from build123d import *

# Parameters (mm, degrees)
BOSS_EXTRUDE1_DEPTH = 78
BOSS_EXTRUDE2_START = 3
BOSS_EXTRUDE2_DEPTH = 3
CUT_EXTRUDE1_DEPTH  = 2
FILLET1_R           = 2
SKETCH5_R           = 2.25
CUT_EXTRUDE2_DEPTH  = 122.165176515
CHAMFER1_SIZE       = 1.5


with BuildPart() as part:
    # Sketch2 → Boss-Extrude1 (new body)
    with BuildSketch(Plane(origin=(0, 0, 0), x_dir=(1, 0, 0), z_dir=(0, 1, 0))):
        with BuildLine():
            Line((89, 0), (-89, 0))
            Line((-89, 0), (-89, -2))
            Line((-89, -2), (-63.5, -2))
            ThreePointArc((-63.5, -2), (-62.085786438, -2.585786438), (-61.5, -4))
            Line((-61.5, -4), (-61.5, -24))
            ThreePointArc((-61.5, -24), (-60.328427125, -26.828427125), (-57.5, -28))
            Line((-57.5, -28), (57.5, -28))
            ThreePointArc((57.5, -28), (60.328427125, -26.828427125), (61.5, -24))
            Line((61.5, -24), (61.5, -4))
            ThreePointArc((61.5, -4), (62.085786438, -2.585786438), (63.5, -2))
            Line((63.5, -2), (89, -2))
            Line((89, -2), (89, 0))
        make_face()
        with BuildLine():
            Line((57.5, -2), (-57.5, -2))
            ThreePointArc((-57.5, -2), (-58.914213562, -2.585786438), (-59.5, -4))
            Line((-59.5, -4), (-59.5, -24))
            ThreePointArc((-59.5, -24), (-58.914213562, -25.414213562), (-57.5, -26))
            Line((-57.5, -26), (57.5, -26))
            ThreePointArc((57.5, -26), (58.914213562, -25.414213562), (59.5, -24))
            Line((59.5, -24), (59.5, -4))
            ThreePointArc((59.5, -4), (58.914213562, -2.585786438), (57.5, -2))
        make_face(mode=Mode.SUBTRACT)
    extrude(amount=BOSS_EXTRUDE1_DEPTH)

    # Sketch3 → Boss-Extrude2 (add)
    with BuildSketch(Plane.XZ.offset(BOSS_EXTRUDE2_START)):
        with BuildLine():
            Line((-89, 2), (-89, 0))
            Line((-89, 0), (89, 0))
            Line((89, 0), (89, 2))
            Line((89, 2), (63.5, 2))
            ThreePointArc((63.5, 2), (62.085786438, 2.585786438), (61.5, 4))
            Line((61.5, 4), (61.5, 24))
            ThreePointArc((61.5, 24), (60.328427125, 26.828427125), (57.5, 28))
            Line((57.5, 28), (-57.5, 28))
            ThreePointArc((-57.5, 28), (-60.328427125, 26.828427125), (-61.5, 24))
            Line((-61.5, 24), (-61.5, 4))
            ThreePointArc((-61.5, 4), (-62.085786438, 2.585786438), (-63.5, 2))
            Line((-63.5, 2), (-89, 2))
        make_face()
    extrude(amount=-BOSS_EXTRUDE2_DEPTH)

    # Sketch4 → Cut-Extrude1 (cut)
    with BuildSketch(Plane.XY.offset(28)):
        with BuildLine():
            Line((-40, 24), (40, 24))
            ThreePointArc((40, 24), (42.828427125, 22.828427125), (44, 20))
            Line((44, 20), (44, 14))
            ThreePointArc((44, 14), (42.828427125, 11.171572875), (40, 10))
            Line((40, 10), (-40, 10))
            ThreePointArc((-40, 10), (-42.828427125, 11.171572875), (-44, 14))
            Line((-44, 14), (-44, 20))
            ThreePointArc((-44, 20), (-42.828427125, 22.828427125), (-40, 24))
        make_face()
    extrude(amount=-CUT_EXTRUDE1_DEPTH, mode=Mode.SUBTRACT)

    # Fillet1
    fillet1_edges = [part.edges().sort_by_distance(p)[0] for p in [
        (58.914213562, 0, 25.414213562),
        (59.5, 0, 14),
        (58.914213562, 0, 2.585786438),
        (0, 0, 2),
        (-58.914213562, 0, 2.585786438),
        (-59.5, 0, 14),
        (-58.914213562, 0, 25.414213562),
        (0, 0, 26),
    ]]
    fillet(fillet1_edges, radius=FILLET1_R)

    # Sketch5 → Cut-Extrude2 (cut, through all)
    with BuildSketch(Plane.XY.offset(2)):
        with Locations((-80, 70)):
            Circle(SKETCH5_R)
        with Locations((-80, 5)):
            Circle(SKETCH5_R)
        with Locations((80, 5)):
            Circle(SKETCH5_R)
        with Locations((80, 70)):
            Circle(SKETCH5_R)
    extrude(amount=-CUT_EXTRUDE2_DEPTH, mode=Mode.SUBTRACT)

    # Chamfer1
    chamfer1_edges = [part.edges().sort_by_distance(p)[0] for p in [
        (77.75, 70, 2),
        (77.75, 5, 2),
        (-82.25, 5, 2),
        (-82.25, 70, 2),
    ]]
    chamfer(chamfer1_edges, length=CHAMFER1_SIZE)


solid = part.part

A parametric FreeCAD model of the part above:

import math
import FreeCAD as App
import Part
import Sketcher
from FreeCAD import Vector
Q = App.Units.Quantity


def edges_at(feature, points):
    """Names of the edges that pass closest to the given points."""
    edges = feature.Shape.Edges
    near = lambda p: min(range(len(edges)), key=lambda i: edges[i].distToShape(Part.Vertex(*p))[0])
    return sorted({f"Edge{near(p) + 1}" for p in points})

doc = App.newDocument("Part")
body = doc.addObject("PartDesign::Body", "Body")

sketch1 = doc.addObject("Sketcher::SketchObject", "Sketch")
body.addObject(sketch1)
sketch1.AttachmentSupport = (doc.XZ_Plane, [""])
sketch1.MapMode = "FlatFace"
sketch1.addGeometry([
    Part.LineSegment(Vector(89, 0, 0), Vector(-89, 0, 0)),
    Part.LineSegment(Vector(-89, 0, 0), Vector(-89, 2, 0)),
    Part.LineSegment(Vector(-89, 2, 0), Vector(-63.5, 2, 0)),
    Part.ArcOfCircle(Part.Circle(Vector(-63.5, 4, 0), Vector(0, 0, 1), 2), math.radians(-90), math.radians(0)),
    Part.LineSegment(Vector(-61.5, 4, 0), Vector(-61.5, 24, 0)),
    Part.ArcOfCircle(Part.Circle(Vector(-57.5, 24, 0), Vector(0, 0, 1), 4), math.radians(90), math.radians(180)),
    Part.LineSegment(Vector(-57.5, 28, 0), Vector(57.5, 28, 0)),
    Part.ArcOfCircle(Part.Circle(Vector(57.5, 24, 0), Vector(0, 0, 1), 4), math.radians(0), math.radians(90)),
    Part.LineSegment(Vector(61.5, 24, 0), Vector(61.5, 4, 0)),
    Part.ArcOfCircle(Part.Circle(Vector(63.5, 4, 0), Vector(0, 0, 1), 2), math.radians(-180), math.radians(-90)),
    Part.LineSegment(Vector(63.5, 2, 0), Vector(89, 2, 0)),
    Part.LineSegment(Vector(89, 2, 0), Vector(89, 0, 0)),
    Part.LineSegment(Vector(-57.5, 2, 0), Vector(57.5, 2, 0)),
    Part.ArcOfCircle(Part.Circle(Vector(57.5, 4, 0), Vector(0, 0, 1), 2), math.radians(-90), math.radians(0)),
    Part.LineSegment(Vector(59.5, 4, 0), Vector(59.5, 24, 0)),
    Part.ArcOfCircle(Part.Circle(Vector(57.5, 24, 0), Vector(0, 0, 1), 2), math.radians(0), math.radians(90)),
    Part.LineSegment(Vector(57.5, 26, 0), Vector(-57.5, 26, 0)),
    Part.ArcOfCircle(Part.Circle(Vector(-57.5, 24, 0), Vector(0, 0, 1), 2), math.radians(90), math.radians(180)),
    Part.LineSegment(Vector(-59.5, 24, 0), Vector(-59.5, 4, 0)),
    Part.ArcOfCircle(Part.Circle(Vector(-57.5, 4, 0), Vector(0, 0, 1), 2), math.radians(-180), math.radians(-90)),
], False)
sketch1.addConstraint([
    Sketcher.Constraint("Coincident", 0, 2, 1, 1),
    Sketcher.Constraint("Coincident", 1, 2, 2, 1),
    Sketcher.Constraint("Tangent", 2, 2, 3, 1),
    Sketcher.Constraint("Tangent", 3, 2, 4, 1),
    Sketcher.Constraint("Tangent", 4, 2, 5, 2),
    Sketcher.Constraint("Tangent", 5, 1, 6, 1),
    Sketcher.Constraint("Tangent", 6, 2, 7, 2),
    Sketcher.Constraint("Tangent", 7, 1, 8, 1),
    Sketcher.Constraint("Tangent", 8, 2, 9, 1),
    Sketcher.Constraint("Tangent", 9, 2, 10, 1),
    Sketcher.Constraint("Coincident", 10, 2, 11, 1),
    Sketcher.Constraint("Coincident", 11, 2, 0, 1),
    Sketcher.Constraint("Tangent", 12, 2, 13, 1),
    Sketcher.Constraint("Tangent", 13, 2, 14, 1),
    Sketcher.Constraint("Tangent", 14, 2, 15, 1),
    Sketcher.Constraint("Tangent", 15, 2, 16, 1),
    Sketcher.Constraint("Tangent", 16, 2, 17, 1),
    Sketcher.Constraint("Tangent", 17, 2, 18, 1),
    Sketcher.Constraint("Tangent", 18, 2, 19, 1),
    Sketcher.Constraint("Tangent", 19, 2, 12, 1),
    Sketcher.Constraint("Horizontal", 0),
    Sketcher.Constraint("Vertical", 1),
    Sketcher.Constraint("Horizontal", 2),
    Sketcher.Constraint("Vertical", 4),
    Sketcher.Constraint("Horizontal", 6),
    Sketcher.Constraint("Vertical", 8),
    Sketcher.Constraint("Horizontal", 10),
    Sketcher.Constraint("Vertical", 11),
    Sketcher.Constraint("Horizontal", 12),
    Sketcher.Constraint("Vertical", 14),
    Sketcher.Constraint("Horizontal", 16),
    Sketcher.Constraint("Vertical", 18),
    Sketcher.Constraint("Coincident", 15, 3, 7, 3),
    Sketcher.Constraint("Coincident", 17, 3, 5, 3),
    Sketcher.Constraint("Equal", 5, 7),
    Sketcher.Constraint("Equal", 3, 9),
    Sketcher.Constraint("Equal", 9, 13),
    Sketcher.Constraint("Equal", 13, 15),
    Sketcher.Constraint("Equal", 17, 19),
    Sketcher.Constraint("Symmetric", 0, 2, 11, 2, -1, 1),
    Sketcher.Constraint("Symmetric", 3, 3, 9, 3, -2),
    Sketcher.Constraint("Horizontal", 9, 3, 13, 3),
    Sketcher.Constraint("Radius", 3, Q("2 mm")),
    Sketcher.Constraint("Radius", 5, Q("4 mm")),
    Sketcher.Constraint("DistanceX", 0, 2, 0, 1, Q("178 mm")),
    Sketcher.Constraint("DistanceX", 6, 1, 6, 2, Q("115 mm")),
    Sketcher.Constraint("DistanceY", 1, 1, 1, 2, Q("2 mm")),
    Sketcher.Constraint("DistanceY", 4, 1, 4, 2, Q("20 mm")),
])
pad1 = doc.addObject("PartDesign::Pad", "Pad")
body.addObject(pad1)
pad1.Profile = sketch1
pad1.Length = 78
pad1.Reversed = True

sketch2 = doc.addObject("Sketcher::SketchObject", "Sketch001")
body.addObject(sketch2)
sketch2.AttachmentSupport = (doc.XZ_Plane, [""])
sketch2.MapMode = "FlatFace"
sketch2.AttachmentOffset = App.Placement(Vector(0, 0, 3), App.Rotation())
sketch2.addGeometry([
    Part.LineSegment(Vector(-89, 2, 0), Vector(-89, 0, 0)),
    Part.LineSegment(Vector(-89, 0, 0), Vector(89, 0, 0)),
    Part.LineSegment(Vector(89, 0, 0), Vector(89, 2, 0)),
    Part.LineSegment(Vector(89, 2, 0), Vector(63.5, 2, 0)),
    Part.ArcOfCircle(Part.Circle(Vector(63.5, 4, 0), Vector(0, 0, 1), 2), math.radians(-180), math.radians(-90)),
    Part.LineSegment(Vector(61.5, 4, 0), Vector(61.5, 24, 0)),
    Part.ArcOfCircle(Part.Circle(Vector(57.5, 24, 0), Vector(0, 0, 1), 4), math.radians(0), math.radians(90)),
    Part.LineSegment(Vector(57.5, 28, 0), Vector(-57.5, 28, 0)),
    Part.ArcOfCircle(Part.Circle(Vector(-57.5, 24, 0), Vector(0, 0, 1), 4), math.radians(90), math.radians(180)),
    Part.LineSegment(Vector(-61.5, 24, 0), Vector(-61.5, 4, 0)),
    Part.ArcOfCircle(Part.Circle(Vector(-63.5, 4, 0), Vector(0, 0, 1), 2), math.radians(-90), math.radians(0)),
    Part.LineSegment(Vector(-63.5, 2, 0), Vector(-89, 2, 0)),
], False)
sketch2.addConstraint([
    Sketcher.Constraint("Coincident", 0, 2, 1, 1),
    Sketcher.Constraint("Coincident", 1, 2, 2, 1),
    Sketcher.Constraint("Coincident", 2, 2, 3, 1),
    Sketcher.Constraint("Tangent", 3, 2, 4, 2),
    Sketcher.Constraint("Tangent", 4, 1, 5, 1),
    Sketcher.Constraint("Tangent", 5, 2, 6, 1),
    Sketcher.Constraint("Tangent", 6, 2, 7, 1),
    Sketcher.Constraint("Tangent", 7, 2, 8, 1),
    Sketcher.Constraint("Tangent", 8, 2, 9, 1),
    Sketcher.Constraint("Tangent", 9, 2, 10, 2),
    Sketcher.Constraint("Tangent", 10, 1, 11, 1),
    Sketcher.Constraint("Coincident", 11, 2, 0, 1),
    Sketcher.Constraint("Vertical", 0),
    Sketcher.Constraint("Horizontal", 1),
    Sketcher.Constraint("Vertical", 2),
    Sketcher.Constraint("Horizontal", 3),
    Sketcher.Constraint("Vertical", 5),
    Sketcher.Constraint("Horizontal", 7),
    Sketcher.Constraint("Vertical", 9),
    Sketcher.Constraint("Horizontal", 11),
    Sketcher.Constraint("Equal", 6, 8),
    Sketcher.Constraint("Equal", 4, 10),
    Sketcher.Constraint("Symmetric", 0, 2, 1, 2, -1, 1),
    Sketcher.Constraint("Symmetric", 4, 3, 10, 3, -2),
    Sketcher.Constraint("Radius", 4, Q("2 mm")),
    Sketcher.Constraint("Radius", 6, Q("4 mm")),
    Sketcher.Constraint("DistanceX", 1, 1, 1, 2, Q("178 mm")),
    Sketcher.Constraint("DistanceX", 7, 2, 7, 1, Q("115 mm")),
    Sketcher.Constraint("DistanceY", 0, 2, 0, 1, Q("2 mm")),
    Sketcher.Constraint("DistanceY", 5, 1, 5, 2, Q("20 mm")),
])
pad2 = doc.addObject("PartDesign::Pad", "Pad001")
body.addObject(pad2)
pad2.Profile = sketch2
pad2.Length = 3
pad2.Reversed = True

sketch3 = doc.addObject("Sketcher::SketchObject", "Sketch002")
body.addObject(sketch3)
sketch3.AttachmentSupport = (doc.XY_Plane, [""])
sketch3.MapMode = "FlatFace"
sketch3.AttachmentOffset = App.Placement(Vector(0, 0, 28), App.Rotation())
sketch3.addGeometry([
    Part.LineSegment(Vector(40, 24, 0), Vector(-40, 24, 0)),
    Part.ArcOfCircle(Part.Circle(Vector(-40, 20, 0), Vector(0, 0, 1), 4), math.radians(90), math.radians(180)),
    Part.LineSegment(Vector(-44, 20, 0), Vector(-44, 14, 0)),
    Part.ArcOfCircle(Part.Circle(Vector(-40, 14, 0), Vector(0, 0, 1), 4), math.radians(180), math.radians(270)),
    Part.LineSegment(Vector(-40, 10, 0), Vector(40, 10, 0)),
    Part.ArcOfCircle(Part.Circle(Vector(40, 14, 0), Vector(0, 0, 1), 4), math.radians(-90), math.radians(0)),
    Part.LineSegment(Vector(44, 14, 0), Vector(44, 20, 0)),
    Part.ArcOfCircle(Part.Circle(Vector(40, 20, 0), Vector(0, 0, 1), 4), math.radians(0), math.radians(90)),
], False)
sketch3.addConstraint([
    Sketcher.Constraint("Tangent", 0, 2, 1, 1),
    Sketcher.Constraint("Tangent", 1, 2, 2, 1),
    Sketcher.Constraint("Tangent", 2, 2, 3, 1),
    Sketcher.Constraint("Tangent", 3, 2, 4, 1),
    Sketcher.Constraint("Tangent", 4, 2, 5, 1),
    Sketcher.Constraint("Tangent", 5, 2, 6, 1),
    Sketcher.Constraint("Tangent", 6, 2, 7, 1),
    Sketcher.Constraint("Tangent", 7, 2, 0, 1),
    Sketcher.Constraint("Horizontal", 0),
    Sketcher.Constraint("Vertical", 2),
    Sketcher.Constraint("Horizontal", 4),
    Sketcher.Constraint("Vertical", 6),
    Sketcher.Constraint("Equal", 1, 3),
    Sketcher.Constraint("Equal", 3, 5),
    Sketcher.Constraint("Equal", 5, 7),
    Sketcher.Constraint("Radius", 1, Q("4 mm")),
    Sketcher.Constraint("DistanceX", 0, 2, 0, 1, Q("80 mm")),
    Sketcher.Constraint("DistanceY", 2, 2, 2, 1, Q("6 mm")),
    Sketcher.Constraint("DistanceX", 1, 3, -1, 1, Q("40 mm")),
    Sketcher.Constraint("DistanceY", -1, 1, 1, 3, Q("20 mm")),
])
pocket1 = doc.addObject("PartDesign::Pocket", "Pocket")
body.addObject(pocket1)
pocket1.Profile = sketch3
pocket1.Length = 2
doc.recompute()

fillet = doc.addObject("PartDesign::Fillet", "Fillet")
body.addObject(fillet)
fillet.Base = (pocket1, edges_at(pocket1, [
    (58.914, 0, 25.414),
    (59.5, 0, 14),
    (58.914, 0, 2.586),
    (0, 0, 2),
    (-58.914, 0, 2.586),
    (-59.5, 0, 14),
    (-58.914, 0, 25.414),
    (0, 0, 26),
]))
fillet.Radius = 2

sketch4 = doc.addObject("Sketcher::SketchObject", "Sketch003")
body.addObject(sketch4)
sketch4.AttachmentSupport = (doc.XY_Plane, [""])
sketch4.MapMode = "FlatFace"
sketch4.AttachmentOffset = App.Placement(Vector(0, 0, 2), App.Rotation())
sketch4.addGeometry([
    Part.Circle(Vector(-80, 70, 0), Vector(0, 0, 1), 2.2),
    Part.Circle(Vector(-80, 5, 0), Vector(0, 0, 1), 2.2),
    Part.Circle(Vector(80, 5, 0), Vector(0, 0, 1), 2.2),
    Part.Circle(Vector(80, 70, 0), Vector(0, 0, 1), 2.2),
], False)
sketch4.addConstraint([
    Sketcher.Constraint("Equal", 0, 1),
    Sketcher.Constraint("Equal", 1, 2),
    Sketcher.Constraint("Equal", 2, 3),
    Sketcher.Constraint("Symmetric", 1, 3, 2, 3, -2),
    Sketcher.Constraint("Symmetric", 0, 3, 3, 3, -2),
    Sketcher.Constraint("Vertical", 0, 3, 1, 3),
    Sketcher.Constraint("Diameter", 0, Q("4.5 mm")),
    Sketcher.Constraint("DistanceX", 0, 3, -1, 1, Q("80 mm")),
    Sketcher.Constraint("DistanceY", -1, 1, 0, 3, Q("70 mm")),
    Sketcher.Constraint("DistanceY", -1, 1, 1, 3, Q("5 mm")),
])
pocket2 = doc.addObject("PartDesign::Pocket", "Pocket001")
body.addObject(pocket2)
pocket2.Profile = sketch4
pocket2.Type = "ThroughAll"
doc.recompute()

chamfer = doc.addObject("PartDesign::Chamfer", "Chamfer")
body.addObject(chamfer)
chamfer.Base = (pocket2, edges_at(pocket2, [
    (77.75, 70, 2),
    (77.75, 5, 2),
    (-82.25, 5, 2),
    (-82.25, 70, 2),
]))
chamfer.Size = 1.5

doc.recompute()
